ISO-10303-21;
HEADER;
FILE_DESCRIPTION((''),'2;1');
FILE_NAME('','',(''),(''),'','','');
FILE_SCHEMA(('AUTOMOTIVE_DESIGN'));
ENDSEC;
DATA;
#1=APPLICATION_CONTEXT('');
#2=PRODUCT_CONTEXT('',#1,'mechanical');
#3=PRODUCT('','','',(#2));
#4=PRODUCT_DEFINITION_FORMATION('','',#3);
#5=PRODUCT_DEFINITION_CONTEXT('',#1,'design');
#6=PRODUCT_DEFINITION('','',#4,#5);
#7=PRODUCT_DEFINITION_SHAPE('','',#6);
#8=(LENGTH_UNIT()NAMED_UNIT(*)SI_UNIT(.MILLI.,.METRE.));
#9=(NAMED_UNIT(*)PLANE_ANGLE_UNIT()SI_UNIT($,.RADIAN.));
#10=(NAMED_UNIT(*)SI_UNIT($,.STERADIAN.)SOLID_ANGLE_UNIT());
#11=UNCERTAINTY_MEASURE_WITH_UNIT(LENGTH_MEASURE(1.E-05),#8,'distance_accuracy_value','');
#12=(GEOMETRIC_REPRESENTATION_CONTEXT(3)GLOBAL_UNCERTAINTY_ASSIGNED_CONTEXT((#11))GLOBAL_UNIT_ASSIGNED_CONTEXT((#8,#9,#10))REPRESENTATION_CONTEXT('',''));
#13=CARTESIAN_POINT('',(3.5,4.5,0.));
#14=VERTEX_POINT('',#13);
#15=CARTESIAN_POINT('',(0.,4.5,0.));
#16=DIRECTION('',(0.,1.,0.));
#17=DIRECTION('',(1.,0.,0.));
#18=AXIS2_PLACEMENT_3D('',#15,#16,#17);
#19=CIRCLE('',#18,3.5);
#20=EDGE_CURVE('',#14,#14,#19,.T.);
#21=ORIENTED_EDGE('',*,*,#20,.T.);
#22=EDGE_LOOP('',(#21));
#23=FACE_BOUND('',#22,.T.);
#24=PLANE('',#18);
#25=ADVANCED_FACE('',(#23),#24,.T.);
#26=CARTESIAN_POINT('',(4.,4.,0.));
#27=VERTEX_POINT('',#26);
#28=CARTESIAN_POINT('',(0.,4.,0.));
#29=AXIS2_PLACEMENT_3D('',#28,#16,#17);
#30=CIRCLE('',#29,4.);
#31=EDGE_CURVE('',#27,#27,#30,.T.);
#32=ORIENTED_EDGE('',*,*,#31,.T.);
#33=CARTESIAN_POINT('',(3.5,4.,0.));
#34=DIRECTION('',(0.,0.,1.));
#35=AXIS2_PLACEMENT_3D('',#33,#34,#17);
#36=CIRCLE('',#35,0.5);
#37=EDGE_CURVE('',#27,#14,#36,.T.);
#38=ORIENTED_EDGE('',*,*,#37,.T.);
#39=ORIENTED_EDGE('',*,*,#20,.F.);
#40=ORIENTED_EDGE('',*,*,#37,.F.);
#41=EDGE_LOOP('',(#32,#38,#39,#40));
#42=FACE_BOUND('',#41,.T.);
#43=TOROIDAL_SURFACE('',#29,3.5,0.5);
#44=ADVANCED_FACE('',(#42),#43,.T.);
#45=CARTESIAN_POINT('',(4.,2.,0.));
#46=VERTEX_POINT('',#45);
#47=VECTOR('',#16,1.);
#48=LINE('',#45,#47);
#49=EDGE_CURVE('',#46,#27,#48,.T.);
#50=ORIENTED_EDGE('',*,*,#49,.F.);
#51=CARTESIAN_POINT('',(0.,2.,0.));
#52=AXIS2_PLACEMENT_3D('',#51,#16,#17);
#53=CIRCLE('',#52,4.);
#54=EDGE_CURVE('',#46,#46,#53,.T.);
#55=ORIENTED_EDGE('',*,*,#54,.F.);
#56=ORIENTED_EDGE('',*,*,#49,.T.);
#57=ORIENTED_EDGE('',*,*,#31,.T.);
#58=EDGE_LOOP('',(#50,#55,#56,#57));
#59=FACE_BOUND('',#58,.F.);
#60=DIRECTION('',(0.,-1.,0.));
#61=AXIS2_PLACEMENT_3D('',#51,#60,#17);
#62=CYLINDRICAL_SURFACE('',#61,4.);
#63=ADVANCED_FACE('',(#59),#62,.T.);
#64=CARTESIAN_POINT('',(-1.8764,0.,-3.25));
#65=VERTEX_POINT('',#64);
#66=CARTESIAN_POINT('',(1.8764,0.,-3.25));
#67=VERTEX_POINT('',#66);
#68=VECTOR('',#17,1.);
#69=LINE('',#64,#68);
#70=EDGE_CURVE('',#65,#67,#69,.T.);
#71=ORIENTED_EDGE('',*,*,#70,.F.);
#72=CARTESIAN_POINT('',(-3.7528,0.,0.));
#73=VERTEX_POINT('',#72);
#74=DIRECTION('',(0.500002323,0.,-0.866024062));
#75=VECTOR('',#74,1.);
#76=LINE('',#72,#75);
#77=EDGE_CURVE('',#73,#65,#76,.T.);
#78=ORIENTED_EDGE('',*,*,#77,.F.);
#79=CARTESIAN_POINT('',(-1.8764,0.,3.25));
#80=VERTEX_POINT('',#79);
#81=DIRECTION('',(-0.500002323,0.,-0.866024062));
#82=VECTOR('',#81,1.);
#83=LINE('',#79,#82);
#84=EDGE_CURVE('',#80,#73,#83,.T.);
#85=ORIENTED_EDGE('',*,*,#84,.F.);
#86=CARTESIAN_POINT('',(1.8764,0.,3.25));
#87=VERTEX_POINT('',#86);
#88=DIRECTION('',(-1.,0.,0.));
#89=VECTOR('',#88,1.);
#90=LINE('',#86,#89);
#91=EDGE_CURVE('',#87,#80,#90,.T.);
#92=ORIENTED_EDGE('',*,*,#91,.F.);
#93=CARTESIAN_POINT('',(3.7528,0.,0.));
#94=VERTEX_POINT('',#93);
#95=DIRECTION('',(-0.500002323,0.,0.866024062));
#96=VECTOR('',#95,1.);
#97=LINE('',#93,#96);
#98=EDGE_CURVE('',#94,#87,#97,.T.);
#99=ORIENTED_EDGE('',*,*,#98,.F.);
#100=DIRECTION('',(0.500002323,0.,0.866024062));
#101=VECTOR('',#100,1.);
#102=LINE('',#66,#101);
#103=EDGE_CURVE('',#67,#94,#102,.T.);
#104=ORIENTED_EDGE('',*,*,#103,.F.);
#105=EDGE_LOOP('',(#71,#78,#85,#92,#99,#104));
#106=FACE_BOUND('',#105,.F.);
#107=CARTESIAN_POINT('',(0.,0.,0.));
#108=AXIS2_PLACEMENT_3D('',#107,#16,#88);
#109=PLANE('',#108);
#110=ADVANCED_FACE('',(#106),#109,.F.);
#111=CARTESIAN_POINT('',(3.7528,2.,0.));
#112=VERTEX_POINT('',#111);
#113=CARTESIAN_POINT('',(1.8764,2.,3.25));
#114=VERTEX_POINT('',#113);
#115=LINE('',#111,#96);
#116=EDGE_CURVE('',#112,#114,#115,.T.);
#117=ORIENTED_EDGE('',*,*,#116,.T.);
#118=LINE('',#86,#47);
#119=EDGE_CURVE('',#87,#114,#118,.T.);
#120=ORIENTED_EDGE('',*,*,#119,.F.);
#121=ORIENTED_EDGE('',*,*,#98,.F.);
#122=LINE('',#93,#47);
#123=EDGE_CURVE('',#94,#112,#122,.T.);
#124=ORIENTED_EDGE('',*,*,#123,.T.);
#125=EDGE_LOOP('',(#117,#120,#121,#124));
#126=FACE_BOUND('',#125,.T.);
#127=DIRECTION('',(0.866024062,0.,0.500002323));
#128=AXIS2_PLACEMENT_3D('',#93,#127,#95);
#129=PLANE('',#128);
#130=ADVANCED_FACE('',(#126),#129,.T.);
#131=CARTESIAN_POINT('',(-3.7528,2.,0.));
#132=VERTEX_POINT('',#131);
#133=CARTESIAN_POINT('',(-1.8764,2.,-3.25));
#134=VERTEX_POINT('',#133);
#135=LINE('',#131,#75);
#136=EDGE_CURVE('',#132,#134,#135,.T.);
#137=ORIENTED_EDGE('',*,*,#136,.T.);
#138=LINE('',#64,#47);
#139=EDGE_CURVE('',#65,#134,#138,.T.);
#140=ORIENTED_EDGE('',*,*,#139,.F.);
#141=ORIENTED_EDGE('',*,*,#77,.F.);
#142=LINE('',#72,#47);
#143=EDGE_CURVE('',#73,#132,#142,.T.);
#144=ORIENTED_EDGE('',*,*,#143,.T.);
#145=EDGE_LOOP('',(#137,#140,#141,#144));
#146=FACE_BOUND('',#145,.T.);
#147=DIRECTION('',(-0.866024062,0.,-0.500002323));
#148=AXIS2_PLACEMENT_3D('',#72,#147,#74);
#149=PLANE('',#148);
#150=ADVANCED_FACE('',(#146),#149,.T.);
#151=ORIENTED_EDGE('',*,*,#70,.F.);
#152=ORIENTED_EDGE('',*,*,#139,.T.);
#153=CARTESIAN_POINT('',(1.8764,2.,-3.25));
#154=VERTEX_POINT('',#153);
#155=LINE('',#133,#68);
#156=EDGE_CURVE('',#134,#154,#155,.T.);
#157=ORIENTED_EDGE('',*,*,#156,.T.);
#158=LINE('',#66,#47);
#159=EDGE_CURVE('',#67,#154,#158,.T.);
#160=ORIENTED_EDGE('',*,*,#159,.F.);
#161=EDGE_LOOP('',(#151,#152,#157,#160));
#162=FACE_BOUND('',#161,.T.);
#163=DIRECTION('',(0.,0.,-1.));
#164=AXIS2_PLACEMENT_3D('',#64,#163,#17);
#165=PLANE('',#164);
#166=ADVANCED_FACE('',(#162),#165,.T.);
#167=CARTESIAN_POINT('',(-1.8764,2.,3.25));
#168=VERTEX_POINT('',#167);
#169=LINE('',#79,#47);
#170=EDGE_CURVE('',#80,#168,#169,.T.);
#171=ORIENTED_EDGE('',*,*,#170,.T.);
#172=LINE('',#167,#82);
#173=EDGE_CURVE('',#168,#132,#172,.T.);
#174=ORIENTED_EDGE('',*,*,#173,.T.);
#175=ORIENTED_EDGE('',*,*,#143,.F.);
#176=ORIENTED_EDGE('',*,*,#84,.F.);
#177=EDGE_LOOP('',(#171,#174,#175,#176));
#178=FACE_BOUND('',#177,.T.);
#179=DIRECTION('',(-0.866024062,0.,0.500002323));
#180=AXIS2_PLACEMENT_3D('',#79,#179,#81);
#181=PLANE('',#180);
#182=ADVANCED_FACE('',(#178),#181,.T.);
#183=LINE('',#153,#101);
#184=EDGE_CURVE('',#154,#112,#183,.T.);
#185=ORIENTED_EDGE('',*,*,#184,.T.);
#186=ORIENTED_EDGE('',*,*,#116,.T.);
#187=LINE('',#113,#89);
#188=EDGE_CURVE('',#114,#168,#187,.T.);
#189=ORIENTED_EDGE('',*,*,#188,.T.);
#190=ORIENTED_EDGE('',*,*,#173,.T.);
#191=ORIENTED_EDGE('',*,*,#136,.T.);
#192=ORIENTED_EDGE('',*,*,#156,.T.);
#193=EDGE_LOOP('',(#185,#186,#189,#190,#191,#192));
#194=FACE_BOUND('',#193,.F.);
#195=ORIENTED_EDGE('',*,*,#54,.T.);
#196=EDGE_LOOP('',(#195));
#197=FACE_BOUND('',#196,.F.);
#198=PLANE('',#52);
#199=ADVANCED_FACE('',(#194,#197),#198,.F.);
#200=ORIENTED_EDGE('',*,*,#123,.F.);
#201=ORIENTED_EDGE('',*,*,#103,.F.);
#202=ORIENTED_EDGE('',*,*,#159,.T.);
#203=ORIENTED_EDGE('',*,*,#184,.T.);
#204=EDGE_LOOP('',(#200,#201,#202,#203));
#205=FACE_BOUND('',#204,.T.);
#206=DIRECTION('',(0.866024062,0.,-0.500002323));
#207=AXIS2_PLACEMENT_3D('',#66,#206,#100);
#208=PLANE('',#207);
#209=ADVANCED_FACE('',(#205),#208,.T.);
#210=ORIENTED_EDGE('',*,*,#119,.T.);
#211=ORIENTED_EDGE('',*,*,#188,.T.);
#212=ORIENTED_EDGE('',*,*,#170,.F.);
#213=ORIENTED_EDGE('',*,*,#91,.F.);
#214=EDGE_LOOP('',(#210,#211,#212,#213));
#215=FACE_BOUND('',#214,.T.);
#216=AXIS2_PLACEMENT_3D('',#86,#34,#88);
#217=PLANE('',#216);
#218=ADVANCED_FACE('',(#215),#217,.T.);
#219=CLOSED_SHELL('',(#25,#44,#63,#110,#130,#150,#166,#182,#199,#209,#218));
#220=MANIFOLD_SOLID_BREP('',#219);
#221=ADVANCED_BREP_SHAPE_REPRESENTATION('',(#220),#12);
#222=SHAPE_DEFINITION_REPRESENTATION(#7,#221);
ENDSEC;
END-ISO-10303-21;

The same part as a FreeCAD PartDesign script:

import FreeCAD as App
import Part
import Sketcher

V = App.Vector
Q = App.Units.Quantity


def edges_at(feature, points):
    """Names of the edges that pass closest to the given points."""
    edges = feature.Shape.Edges
    near = lambda p: min(range(len(edges)), key=lambda i: edges[i].distToShape(Part.Vertex(*p))[0])
    return sorted({f"Edge{near(p) + 1}" for p in points})

doc = App.newDocument("Part")
body = doc.addObject("PartDesign::Body", "Body")

# Sketch on XZ plane
sketch1 = body.newObject("Sketcher::SketchObject", "Sketch")
sketch1.AttachmentSupport = (doc.getObject("XZ_Plane"), [""])
sketch1.MapMode = "FlatFace"
sketch1.addGeometry(Part.LineSegment(V(-1.8764, -3.25, 0), V(-3.7528, 0, 0)), False)
sketch1.addGeometry(Part.LineSegment(V(-3.7528, 0, 0), V(-1.8764, 3.25, 0)), False)
sketch1.addGeometry(Part.LineSegment(V(-1.8764, 3.25, 0), V(1.8764, 3.25, 0)), False)
sketch1.addGeometry(Part.LineSegment(V(1.8764, 3.25, 0), V(3.7528, 0, 0)), False)
sketch1.addGeometry(Part.LineSegment(V(3.7528, 0, 0), V(1.8764, -3.25, 0)), False)
sketch1.addGeometry(Part.LineSegment(V(1.8764, -3.25, 0), V(-1.8764, -3.25, 0)), False)
sketch1.addConstraint(Sketcher.Constraint("Coincident", 0, 2, 1, 1))
sketch1.addConstraint(Sketcher.Constraint("Coincident", 1, 2, 2, 1))
sketch1.addConstraint(Sketcher.Constraint("Coincident", 2, 2, 3, 1))
sketch1.addConstraint(Sketcher.Constraint("Coincident", 3, 2, 4, 1))
sketch1.addConstraint(Sketcher.Constraint("Coincident", 4, 2, 5, 1))
sketch1.addConstraint(Sketcher.Constraint("Coincident", 5, 2, 0, 1))
sketch1.addConstraint(Sketcher.Constraint("Horizontal", 2))
sketch1.addConstraint(Sketcher.Constraint("Horizontal", 5))
sketch1.addConstraint(Sketcher.Constraint("Symmetric", 0, 2, 3, 2, -1, 1))
sketch1.addConstraint(Sketcher.Constraint("Symmetric", 1, 2, 4, 2, -1, 1))
sketch1.addConstraint(Sketcher.Constraint("PointOnObject", 0, 2, -1))
sketch1.addConstraint(Sketcher.Constraint("Parallel", 0, 3))
sketch1.addConstraint(Sketcher.Constraint("Vertical", 2, 2, 4, 2))
sketch1.addConstraint(Sketcher.Constraint("DistanceY", 4, 2, 2, 2, Q("6.5 mm")))
sketch1.addConstraint(Sketcher.Constraint("Angle", 0, Q("120.0002 deg")))
sketch1.addConstraint(Sketcher.Constraint("DistanceX", 2, 1, 2, 2, Q("3.7528 mm")))
pad1 = body.newObject("PartDesign::Pad", "Pad")
pad1.Profile = sketch1
pad1.Length = 2
pad1.Reversed = True

# Sketch on XZ plane
sketch2 = body.newObject("Sketcher::SketchObject", "Sketch001")
sketch2.AttachmentSupport = (doc.getObject("XZ_Plane"), [""])
sketch2.MapMode = "FlatFace"
sketch2.AttachmentOffset = App.Placement(V(0, 0, -2), App.Rotation())
sketch2.addGeometry(Part.Circle(V(0, 0, 0), V(0, 0, 1), 4), False)
sketch2.addConstraint(Sketcher.Constraint("Coincident", 0, 3, -1, 1))
sketch2.addConstraint(Sketcher.Constraint("Diameter", 0, Q("8 mm")))
pad2 = body.newObject("PartDesign::Pad", "Pad001")
pad2.Profile = sketch2
pad2.Length = 2.5
pad2.Reversed = True
doc.recompute()

fillet = body.newObject("PartDesign::Fillet", "Fillet")
fillet.Base = (pad2, edges_at(pad2, [(-4, 4.5, 0)]))
fillet.Radius = 0.5

doc.recompute()
